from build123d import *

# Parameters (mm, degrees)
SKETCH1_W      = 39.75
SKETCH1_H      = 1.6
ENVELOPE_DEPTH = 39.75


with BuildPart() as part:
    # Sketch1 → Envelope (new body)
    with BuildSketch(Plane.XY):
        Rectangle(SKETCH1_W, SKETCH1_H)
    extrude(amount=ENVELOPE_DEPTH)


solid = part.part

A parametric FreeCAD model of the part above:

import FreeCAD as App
import Part
import Sketcher

doc = App.newDocument("Part")
body = doc.addObject("PartDesign::Body", "Body")

# Sketch on XY plane
sketch1 = doc.addObject("Sketcher::SketchObject", "Sketch")
body.addObject(sketch1)
sketch1.AttachmentSupport = (doc.XY_Plane, [""])
sketch1.MapMode = "FlatFace"
sketch1.addGeometry([
    Part.LineSegment(App.Vector(-19.9, 0.8, 0), App.Vector(-19.9, -0.8, 0)),
    Part.LineSegment(App.Vector(-19.9, -0.8, 0), App.Vector(19.9, -0.8, 0)),
    Part.LineSegment(App.Vector(19.9, -0.8, 0), App.Vector(19.9, 0.8, 0)),
    Part.LineSegment(App.Vector(19.9, 0.8, 0), App.Vector(-19.9, 0.8, 0)),
], False)
sketch1.addConstraint([
    Sketcher.Constraint("Coincident", 0, 2, 1, 1),
    Sketcher.Constraint("Coincident", 1, 2, 2, 1),
    Sketcher.Constraint("Coincident", 2, 2, 3, 1),
    Sketcher.Constraint("Coincident", 3, 2, 0, 1),
    Sketcher.Constraint("Vertical", 0),
    Sketcher.Constraint("Horizontal", 1),
    Sketcher.Constraint("Vertical", 2),
    Sketcher.Constraint("Horizontal", 3),
    Sketcher.Constraint("Symmetric", 0, 2, 2, 2, -1, 1),
    Sketcher.Constraint("DistanceY", 0, 2, 0, 1, 1.6),
    Sketcher.Constraint("DistanceX", 1, 1, 1, 2, 39.75),
])
pad1 = doc.addObject("PartDesign::Pad", "Pad")
body.addObject(pad1)
pad1.Profile = sketch1
pad1.Length = 39.75

doc.recompute()
